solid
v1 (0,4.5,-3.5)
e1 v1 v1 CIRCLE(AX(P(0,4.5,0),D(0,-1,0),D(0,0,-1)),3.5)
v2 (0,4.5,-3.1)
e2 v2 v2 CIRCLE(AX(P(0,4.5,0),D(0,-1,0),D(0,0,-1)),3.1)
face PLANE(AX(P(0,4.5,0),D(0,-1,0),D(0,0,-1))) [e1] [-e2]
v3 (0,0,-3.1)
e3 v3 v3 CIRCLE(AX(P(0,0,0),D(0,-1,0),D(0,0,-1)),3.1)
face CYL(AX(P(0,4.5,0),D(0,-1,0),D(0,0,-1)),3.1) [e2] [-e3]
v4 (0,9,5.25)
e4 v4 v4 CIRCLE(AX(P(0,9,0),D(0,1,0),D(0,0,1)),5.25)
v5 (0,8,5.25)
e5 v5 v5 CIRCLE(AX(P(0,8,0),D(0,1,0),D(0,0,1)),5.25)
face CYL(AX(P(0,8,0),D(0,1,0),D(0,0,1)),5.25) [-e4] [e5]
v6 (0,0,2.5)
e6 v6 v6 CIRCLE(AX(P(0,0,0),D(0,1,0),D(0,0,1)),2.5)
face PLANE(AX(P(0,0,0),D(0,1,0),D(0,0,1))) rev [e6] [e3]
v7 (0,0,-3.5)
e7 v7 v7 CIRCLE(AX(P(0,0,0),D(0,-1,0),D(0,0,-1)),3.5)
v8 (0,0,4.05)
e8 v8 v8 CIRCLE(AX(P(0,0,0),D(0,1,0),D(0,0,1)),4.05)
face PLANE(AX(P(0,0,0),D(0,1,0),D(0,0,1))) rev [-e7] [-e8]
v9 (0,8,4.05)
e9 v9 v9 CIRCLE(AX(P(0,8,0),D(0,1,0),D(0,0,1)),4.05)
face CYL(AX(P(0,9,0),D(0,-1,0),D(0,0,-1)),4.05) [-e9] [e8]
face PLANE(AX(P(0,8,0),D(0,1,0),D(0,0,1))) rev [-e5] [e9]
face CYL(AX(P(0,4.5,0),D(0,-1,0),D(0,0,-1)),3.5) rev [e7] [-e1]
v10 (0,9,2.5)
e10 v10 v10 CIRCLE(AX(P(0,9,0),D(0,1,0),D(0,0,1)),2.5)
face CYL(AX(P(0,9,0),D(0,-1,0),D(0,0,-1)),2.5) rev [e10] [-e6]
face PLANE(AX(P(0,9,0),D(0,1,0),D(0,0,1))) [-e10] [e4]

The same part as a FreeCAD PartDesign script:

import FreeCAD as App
import Part
import Sketcher

doc = App.newDocument("Part")
body = doc.addObject("PartDesign::Body", "Body")

# Sketch on XZ plane
sketch1 = body.newObject("Sketcher::SketchObject", "Sketch")
sketch1.AttachmentSupport = (doc.getObject("XZ_Plane"), [""])
sketch1.MapMode = "FlatFace"
sketch1.addGeometry([
    Part.Circle(App.Vector(0, 0, 0), App.Vector(0, 0, 1), 4),
    Part.Circle(App.Vector(0, 0, 0), App.Vector(0, 0, 1), 2.5),
], False)
sketch1.addConstraint([
    Sketcher.Constraint("Coincident", 0, 3, -1, 1),
    Sketcher.Constraint("Coincident", 1, 3, -1, 1),
    Sketcher.Constraint("Diameter", 1, 5.0),
    Sketcher.Constraint("Diameter", 0, 8.1),
])
pad1 = body.newObject("PartDesign::Pad", "Pad")
pad1.Profile = sketch1
pad1.Length = 9
pad1.Reversed = True

# Sketch on XZ plane
sketch2 = body.newObject("Sketcher::SketchObject", "Sketch001")
sketch2.AttachmentSupport = (doc.getObject("XZ_Plane"), [""])
sketch2.MapMode = "FlatFace"
sketch2.AttachmentOffset = App.Placement(App.Vector(0, 0, -8), App.Rotation())
sketch2.addGeometry([
    Part.Circle(App.Vector(0, 0, 0), App.Vector(0, 0, 1), 5.2),
    Part.Circle(App.Vector(0, 0, 0), App.Vector(0, 0, 1), 2.5),
], False)
sketch2.addConstraint([
    Sketcher.Constraint("Coincident", 0, 3, -1, 1),
    Sketcher.Constraint("Coincident", 1, 3, -1, 1),
    Sketcher.Constraint("Diameter", 1, 5.0),
    Sketcher.Constraint("Diameter", 0, 10.5),
])
pad2 = body.newObject("PartDesign::Pad", "Pad001")
pad2.Profile = sketch2
pad2.Length = 1
pad2.Reversed = True

# Sketch on XZ plane
sketch3 = body.newObject("Sketcher::SketchObject", "Sketch002")
sketch3.AttachmentSupport = (doc.getObject("XZ_Plane"), [""])
sketch3.MapMode = "FlatFace"
sketch3.addGeometry([
    Part.Circle(App.Vector(0, 0, 0), App.Vector(0, 0, 1), 3.5),
    Part.Circle(App.Vector(0, 0, 0), App.Vector(0, 0, 1), 3.1),
], False)
sketch3.addConstraint([
    Sketcher.Constraint("Coincident", 0, 3, -1, 1),
    Sketcher.Constraint("Coincident", 1, 3, -1, 1),
    Sketcher.Constraint("Diameter", 0, 7.0),
    Sketcher.Constraint("Diameter", 1, 6.2),
])
pocket1 = body.newObject("PartDesign::Pocket", "Pocket")
pocket1.Profile = sketch3
pocket1.Length = 4.5

doc.recompute()
